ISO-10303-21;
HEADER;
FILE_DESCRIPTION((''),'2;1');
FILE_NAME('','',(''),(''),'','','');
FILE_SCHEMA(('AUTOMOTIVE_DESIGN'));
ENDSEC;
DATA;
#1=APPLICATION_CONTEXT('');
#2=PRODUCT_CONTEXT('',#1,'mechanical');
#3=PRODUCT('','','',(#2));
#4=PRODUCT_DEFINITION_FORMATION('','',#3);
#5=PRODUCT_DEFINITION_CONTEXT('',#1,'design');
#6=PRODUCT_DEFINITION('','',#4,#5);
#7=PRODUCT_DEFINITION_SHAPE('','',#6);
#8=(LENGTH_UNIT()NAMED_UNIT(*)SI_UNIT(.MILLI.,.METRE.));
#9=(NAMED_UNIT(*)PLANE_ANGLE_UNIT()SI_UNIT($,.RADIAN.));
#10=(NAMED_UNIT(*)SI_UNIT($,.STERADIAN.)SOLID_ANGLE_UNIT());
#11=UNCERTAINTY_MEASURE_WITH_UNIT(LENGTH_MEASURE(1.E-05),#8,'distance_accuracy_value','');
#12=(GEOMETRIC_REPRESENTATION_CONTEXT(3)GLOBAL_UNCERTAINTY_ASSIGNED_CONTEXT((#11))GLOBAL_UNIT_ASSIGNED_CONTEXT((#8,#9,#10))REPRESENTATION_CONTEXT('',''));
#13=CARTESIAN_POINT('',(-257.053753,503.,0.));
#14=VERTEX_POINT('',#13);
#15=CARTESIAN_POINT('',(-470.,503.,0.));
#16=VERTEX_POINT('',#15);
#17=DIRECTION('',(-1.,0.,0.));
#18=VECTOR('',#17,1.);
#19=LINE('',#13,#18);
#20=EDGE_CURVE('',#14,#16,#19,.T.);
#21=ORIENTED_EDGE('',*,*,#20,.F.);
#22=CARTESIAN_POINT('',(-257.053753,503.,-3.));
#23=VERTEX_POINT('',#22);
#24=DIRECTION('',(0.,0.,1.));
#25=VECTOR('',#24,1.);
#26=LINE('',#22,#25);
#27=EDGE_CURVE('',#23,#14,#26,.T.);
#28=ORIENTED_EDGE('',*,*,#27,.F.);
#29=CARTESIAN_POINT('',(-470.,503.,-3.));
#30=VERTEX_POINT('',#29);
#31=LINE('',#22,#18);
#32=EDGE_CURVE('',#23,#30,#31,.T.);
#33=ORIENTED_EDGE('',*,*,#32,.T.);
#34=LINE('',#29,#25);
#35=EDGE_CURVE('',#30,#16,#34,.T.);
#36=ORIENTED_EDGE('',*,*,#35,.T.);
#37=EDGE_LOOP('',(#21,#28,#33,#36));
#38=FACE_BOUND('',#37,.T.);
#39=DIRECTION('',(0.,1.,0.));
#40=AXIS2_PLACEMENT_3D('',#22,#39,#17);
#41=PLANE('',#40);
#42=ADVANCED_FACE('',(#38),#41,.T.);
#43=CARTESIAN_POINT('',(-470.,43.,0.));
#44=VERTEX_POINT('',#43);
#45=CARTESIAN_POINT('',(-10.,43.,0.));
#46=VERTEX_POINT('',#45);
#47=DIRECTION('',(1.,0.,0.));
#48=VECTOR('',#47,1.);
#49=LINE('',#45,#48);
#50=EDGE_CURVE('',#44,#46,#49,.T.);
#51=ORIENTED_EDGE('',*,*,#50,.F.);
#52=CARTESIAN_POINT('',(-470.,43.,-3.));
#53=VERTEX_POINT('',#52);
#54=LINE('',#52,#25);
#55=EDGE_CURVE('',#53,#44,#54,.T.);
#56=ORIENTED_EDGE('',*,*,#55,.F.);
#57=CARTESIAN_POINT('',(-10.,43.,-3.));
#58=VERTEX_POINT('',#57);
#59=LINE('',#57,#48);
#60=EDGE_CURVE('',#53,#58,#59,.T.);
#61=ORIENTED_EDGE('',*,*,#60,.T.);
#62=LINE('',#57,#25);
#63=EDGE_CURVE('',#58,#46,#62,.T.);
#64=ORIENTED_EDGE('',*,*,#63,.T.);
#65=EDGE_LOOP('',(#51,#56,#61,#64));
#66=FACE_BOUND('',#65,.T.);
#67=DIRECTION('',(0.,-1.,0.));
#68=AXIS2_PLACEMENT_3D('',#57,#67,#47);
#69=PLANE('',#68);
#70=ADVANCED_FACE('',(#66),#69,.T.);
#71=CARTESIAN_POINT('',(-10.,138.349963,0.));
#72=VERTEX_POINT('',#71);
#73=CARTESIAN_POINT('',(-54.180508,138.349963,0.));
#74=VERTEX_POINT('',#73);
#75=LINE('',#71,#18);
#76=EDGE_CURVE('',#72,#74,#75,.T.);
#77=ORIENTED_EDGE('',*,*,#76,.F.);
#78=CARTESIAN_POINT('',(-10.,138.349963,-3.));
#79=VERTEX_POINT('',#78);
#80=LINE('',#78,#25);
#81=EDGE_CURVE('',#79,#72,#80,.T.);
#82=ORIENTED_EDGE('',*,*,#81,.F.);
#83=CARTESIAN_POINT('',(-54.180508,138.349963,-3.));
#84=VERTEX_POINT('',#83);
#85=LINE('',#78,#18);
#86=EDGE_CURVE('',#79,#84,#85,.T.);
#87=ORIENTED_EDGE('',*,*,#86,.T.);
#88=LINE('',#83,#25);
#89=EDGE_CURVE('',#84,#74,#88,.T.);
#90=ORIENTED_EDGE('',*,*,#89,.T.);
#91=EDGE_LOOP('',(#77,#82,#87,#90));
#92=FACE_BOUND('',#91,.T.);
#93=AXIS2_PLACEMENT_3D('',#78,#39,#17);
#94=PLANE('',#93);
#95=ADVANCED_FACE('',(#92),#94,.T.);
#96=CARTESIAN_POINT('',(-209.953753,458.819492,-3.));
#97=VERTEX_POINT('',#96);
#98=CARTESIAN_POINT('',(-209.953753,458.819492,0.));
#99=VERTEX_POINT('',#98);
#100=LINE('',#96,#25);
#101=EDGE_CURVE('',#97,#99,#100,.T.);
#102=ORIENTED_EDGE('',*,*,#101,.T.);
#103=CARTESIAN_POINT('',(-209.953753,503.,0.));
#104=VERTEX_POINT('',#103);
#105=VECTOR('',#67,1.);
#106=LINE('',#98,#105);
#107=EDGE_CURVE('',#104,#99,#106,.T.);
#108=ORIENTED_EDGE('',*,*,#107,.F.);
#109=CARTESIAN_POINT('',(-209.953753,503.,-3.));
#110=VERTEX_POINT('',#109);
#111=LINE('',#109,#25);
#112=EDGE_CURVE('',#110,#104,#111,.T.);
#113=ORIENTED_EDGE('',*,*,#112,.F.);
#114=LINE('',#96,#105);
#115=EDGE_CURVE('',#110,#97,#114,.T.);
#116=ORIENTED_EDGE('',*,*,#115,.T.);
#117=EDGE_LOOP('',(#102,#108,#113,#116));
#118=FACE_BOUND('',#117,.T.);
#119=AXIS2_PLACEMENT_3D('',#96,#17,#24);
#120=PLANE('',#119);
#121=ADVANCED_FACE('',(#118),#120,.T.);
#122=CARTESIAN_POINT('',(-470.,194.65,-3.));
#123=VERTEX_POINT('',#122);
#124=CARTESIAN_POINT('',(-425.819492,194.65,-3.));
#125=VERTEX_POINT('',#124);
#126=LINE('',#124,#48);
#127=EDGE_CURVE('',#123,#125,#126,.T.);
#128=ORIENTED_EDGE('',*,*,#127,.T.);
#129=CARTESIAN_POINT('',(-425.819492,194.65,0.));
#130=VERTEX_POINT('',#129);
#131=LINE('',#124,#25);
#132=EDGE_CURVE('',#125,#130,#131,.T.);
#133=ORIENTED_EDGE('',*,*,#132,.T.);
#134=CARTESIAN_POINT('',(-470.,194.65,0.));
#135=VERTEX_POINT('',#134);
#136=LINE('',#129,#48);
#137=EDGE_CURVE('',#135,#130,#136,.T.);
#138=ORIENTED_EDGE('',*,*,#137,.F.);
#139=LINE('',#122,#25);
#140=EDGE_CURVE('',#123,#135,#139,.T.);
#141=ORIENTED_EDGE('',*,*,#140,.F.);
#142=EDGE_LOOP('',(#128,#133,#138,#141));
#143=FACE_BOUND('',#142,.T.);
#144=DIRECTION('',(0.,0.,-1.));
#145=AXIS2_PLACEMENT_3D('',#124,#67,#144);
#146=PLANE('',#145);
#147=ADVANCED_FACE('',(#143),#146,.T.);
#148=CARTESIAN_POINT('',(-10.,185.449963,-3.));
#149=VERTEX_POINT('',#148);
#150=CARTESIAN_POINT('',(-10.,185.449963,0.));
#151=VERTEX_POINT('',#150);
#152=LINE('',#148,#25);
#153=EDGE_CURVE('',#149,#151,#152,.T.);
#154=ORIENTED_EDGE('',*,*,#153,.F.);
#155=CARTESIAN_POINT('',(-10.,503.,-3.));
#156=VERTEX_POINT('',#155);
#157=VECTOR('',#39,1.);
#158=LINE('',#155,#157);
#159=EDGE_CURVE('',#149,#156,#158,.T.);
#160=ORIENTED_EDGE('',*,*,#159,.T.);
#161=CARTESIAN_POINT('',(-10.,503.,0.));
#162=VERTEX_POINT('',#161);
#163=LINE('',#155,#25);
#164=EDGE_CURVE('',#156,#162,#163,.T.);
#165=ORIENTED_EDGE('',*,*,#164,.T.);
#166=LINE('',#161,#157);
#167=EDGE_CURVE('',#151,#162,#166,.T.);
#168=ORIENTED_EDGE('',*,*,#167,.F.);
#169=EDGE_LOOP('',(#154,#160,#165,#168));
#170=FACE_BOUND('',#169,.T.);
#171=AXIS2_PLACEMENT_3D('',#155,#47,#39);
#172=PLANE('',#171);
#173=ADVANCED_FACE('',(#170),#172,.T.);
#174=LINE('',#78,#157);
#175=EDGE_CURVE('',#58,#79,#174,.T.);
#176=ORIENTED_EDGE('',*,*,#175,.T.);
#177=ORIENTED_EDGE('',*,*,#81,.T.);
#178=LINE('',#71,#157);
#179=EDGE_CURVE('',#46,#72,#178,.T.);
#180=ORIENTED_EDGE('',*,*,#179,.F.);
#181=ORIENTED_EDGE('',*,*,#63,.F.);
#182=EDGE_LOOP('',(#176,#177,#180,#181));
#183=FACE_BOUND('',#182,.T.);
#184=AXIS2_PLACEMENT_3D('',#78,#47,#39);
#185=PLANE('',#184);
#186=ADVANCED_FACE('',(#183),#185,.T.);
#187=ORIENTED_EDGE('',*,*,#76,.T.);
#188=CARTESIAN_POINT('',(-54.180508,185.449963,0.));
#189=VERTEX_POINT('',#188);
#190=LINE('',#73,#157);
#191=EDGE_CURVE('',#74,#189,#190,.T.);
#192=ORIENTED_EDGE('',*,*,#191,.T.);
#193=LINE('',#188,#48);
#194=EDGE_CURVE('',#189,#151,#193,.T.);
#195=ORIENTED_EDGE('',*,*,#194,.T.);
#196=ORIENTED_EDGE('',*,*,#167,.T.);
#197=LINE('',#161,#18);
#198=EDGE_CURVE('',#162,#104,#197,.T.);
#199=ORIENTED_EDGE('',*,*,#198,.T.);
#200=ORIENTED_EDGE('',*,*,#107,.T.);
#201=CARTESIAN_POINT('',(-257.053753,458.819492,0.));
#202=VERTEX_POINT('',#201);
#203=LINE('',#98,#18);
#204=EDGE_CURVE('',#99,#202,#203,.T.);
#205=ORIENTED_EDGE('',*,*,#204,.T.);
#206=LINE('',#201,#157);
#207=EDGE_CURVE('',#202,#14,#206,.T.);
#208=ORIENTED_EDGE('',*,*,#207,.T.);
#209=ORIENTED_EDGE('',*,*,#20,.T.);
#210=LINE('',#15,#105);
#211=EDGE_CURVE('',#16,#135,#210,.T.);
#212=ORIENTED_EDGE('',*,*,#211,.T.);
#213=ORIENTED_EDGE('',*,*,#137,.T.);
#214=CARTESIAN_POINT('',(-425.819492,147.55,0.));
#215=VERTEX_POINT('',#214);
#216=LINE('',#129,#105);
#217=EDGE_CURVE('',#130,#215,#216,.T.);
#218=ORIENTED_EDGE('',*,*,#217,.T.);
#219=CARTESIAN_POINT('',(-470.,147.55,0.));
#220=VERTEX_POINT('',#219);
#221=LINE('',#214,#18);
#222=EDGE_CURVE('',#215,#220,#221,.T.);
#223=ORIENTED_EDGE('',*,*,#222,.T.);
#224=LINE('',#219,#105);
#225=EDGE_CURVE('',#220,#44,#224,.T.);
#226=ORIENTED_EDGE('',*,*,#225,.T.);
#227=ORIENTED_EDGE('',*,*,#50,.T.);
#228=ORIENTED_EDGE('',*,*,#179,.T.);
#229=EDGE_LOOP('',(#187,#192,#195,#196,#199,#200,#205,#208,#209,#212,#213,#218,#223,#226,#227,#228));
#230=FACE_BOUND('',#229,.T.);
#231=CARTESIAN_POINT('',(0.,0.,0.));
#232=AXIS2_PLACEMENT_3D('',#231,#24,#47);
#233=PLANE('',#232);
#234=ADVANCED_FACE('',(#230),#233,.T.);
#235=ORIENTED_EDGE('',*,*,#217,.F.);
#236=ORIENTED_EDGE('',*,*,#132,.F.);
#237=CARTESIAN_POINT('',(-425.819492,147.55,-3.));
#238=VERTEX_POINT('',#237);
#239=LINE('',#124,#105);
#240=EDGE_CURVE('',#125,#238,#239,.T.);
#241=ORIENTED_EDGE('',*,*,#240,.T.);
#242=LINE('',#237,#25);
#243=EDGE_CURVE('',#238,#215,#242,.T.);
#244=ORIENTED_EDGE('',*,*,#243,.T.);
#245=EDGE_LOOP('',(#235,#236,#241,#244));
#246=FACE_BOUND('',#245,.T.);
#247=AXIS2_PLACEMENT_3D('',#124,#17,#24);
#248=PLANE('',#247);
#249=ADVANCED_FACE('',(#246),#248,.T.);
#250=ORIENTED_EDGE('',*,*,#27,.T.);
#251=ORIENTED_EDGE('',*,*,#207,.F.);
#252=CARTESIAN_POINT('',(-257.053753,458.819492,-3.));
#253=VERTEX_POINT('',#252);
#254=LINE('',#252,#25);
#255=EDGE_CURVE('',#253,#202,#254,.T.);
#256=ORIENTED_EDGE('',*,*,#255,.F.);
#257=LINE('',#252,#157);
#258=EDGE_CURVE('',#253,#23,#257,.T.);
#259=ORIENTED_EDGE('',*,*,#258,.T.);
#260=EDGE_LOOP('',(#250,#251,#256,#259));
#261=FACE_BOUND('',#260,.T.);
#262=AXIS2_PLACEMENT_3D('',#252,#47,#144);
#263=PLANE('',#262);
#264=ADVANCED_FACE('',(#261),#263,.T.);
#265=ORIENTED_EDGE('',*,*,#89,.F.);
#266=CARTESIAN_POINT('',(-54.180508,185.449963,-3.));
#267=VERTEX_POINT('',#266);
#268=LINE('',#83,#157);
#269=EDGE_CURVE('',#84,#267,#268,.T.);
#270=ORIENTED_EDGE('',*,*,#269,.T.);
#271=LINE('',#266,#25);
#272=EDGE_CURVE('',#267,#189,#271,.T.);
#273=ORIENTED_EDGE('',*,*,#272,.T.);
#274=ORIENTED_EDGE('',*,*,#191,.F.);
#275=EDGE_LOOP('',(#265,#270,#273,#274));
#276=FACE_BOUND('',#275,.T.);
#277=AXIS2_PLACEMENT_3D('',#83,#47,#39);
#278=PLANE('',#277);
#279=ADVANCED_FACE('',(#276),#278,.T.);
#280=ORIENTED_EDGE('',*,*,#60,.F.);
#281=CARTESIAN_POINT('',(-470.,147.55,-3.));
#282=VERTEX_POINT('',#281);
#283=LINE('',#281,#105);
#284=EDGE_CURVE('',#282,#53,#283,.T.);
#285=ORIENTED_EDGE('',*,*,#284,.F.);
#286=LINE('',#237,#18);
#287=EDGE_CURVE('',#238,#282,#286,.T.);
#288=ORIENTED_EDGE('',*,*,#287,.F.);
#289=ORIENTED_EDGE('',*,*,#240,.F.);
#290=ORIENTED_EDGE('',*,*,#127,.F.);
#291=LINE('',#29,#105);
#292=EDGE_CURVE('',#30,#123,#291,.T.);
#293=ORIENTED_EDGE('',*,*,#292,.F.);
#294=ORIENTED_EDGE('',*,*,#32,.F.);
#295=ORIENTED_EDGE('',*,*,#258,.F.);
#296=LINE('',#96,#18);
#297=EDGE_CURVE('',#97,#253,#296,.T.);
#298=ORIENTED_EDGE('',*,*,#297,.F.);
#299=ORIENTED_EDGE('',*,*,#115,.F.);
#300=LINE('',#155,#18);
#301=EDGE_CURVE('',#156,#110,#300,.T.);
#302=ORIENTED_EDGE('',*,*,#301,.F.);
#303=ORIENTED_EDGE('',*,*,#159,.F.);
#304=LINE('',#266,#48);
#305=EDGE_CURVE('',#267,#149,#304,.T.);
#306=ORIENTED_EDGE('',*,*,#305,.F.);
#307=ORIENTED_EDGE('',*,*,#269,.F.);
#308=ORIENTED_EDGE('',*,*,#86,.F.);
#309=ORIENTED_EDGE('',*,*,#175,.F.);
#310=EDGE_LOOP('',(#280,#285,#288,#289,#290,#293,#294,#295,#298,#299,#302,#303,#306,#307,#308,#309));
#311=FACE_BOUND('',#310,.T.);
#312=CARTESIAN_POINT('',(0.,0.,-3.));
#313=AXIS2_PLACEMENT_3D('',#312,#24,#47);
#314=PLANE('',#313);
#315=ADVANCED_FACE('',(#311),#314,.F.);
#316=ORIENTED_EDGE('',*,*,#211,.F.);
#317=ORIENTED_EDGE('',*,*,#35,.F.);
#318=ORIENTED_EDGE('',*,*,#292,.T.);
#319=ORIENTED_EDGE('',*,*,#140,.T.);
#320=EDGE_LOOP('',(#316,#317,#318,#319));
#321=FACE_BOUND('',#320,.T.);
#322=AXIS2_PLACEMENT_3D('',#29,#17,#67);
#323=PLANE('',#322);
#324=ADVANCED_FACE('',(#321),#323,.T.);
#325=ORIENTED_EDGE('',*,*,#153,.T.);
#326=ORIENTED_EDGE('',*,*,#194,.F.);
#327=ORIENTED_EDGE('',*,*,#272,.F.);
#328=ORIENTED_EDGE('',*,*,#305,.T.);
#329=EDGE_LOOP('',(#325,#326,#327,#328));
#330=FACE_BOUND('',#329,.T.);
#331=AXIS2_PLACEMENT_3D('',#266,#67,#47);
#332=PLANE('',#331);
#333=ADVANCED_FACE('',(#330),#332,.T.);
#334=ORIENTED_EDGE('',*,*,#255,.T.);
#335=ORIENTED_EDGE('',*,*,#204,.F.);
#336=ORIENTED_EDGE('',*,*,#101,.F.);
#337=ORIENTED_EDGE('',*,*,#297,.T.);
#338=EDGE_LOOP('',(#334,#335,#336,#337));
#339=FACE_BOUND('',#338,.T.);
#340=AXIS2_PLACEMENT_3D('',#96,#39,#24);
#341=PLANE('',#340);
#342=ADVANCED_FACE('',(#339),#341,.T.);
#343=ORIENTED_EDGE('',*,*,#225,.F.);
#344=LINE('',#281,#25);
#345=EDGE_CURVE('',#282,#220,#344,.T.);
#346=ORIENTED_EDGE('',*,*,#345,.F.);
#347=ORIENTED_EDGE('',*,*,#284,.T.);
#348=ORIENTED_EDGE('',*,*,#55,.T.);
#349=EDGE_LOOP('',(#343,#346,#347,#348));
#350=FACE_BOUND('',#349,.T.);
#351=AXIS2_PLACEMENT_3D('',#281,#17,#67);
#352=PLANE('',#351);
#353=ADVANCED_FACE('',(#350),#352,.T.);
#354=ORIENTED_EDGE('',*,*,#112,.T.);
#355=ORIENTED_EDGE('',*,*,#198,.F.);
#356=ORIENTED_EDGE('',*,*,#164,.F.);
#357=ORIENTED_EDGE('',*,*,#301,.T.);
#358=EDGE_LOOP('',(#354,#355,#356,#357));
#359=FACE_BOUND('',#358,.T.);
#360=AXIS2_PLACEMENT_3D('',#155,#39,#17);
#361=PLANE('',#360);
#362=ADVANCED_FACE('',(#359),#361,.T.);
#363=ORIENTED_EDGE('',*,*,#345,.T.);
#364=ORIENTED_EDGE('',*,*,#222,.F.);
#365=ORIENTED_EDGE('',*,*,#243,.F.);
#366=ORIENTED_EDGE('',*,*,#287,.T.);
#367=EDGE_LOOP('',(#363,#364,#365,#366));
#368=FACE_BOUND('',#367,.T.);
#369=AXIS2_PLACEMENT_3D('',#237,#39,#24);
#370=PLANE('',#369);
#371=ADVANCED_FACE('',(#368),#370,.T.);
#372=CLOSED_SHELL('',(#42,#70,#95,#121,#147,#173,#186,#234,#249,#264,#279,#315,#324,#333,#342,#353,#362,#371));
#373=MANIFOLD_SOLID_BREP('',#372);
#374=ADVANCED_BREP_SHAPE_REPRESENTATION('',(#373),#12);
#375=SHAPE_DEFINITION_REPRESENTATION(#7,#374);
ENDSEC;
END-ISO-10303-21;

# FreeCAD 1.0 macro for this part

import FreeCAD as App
import Part
import Sketcher
from FreeCAD import Vector


def add_polygon(sketch, points):
    """Adds a closed chain of lines whose ends are joined by coincident constraints."""
    first, n = sketch.GeometryCount, len(points)
    for a, b in zip(points, points[1:] + points[:1]):
        sketch.addGeometry(Part.LineSegment(App.Vector(*a, 0), App.Vector(*b, 0)), False)
    for i in range(n):
        sketch.addConstraint(Sketcher.Constraint("Coincident", first + i, 2, first + (i + 1) % n, 1))

doc = App.newDocument("Part")
params = doc.addObject("Spreadsheet::Sheet", "Params")
for row, (alias, value) in enumerate([
    ("sketch1_width", "460 mm"),
    ("sketch1_width2", "47.1 mm"),
    ("sketch1_height", "308.35 mm"),
    ("pad1_length", "3 mm"),
], start=1):
    params.set(f"A{row}", alias)
    params.set(f"B{row}", "=" + value)
    params.setAlias(f"B{row}", alias)

body = doc.addObject("PartDesign::Body", "Body")

# Sketch on XY plane
sketch1 = doc.addObject("Sketcher::SketchObject", "Sketch")
body.addObject(sketch1)
sketch1.AttachmentSupport = (doc.XY_Plane, [""])
sketch1.MapMode = "FlatFace"
add_polygon(sketch1, [(-10, 503), (-210, 503), (-210, 459), (-257, 459), (-257, 503), (-470, 503), (-470, 195), (-426, 195), (-426, 148), (-470, 148), (-470, 43), (-10, 43), (-10, 138), (-54, 138), (-54, 185), (-10, 185)])  # lines 0-15
sketch1.addConstraint([
    Sketcher.Constraint("Horizontal", 0),
    Sketcher.Constraint("Vertical", 1),
    Sketcher.Constraint("Horizontal", 2),
    Sketcher.Constraint("Vertical", 3),
    Sketcher.Constraint("Horizontal", 4),
    Sketcher.Constraint("Vertical", 5),
    Sketcher.Constraint("Horizontal", 6),
    Sketcher.Constraint("Vertical", 7),
    Sketcher.Constraint("Horizontal", 8),
    Sketcher.Constraint("Vertical", 9),
    Sketcher.Constraint("Horizontal", 10),
    Sketcher.Constraint("Vertical", 11),
    Sketcher.Constraint("Horizontal", 12),
    Sketcher.Constraint("Vertical", 13),
    Sketcher.Constraint("Horizontal", 14),
    Sketcher.Constraint("Vertical", 15),
    Sketcher.Constraint("Horizontal", 0, 2, 3, 2),
    Sketcher.Constraint("Vertical", 5, 2, 8, 2),
    Sketcher.Constraint("Vertical", 11, 2, 14, 2),
    Sketcher.Constraint("Equal", 8, 12),
    Sketcher.Constraint("Equal", 14, 1),
    Sketcher.Constraint("Equal", 2, 7),
    Sketcher.Constraint("Equal", 7, 13),
    Sketcher.Constraint("DistanceX", 10, 1, 10, 2, 460.0),
    Sketcher.Constraint("DistanceX", 2, 2, 2, 1, 47.1),
    Sketcher.Constraint("DistanceY", -1, 1, 0, 2, 503.0),
    Sketcher.Constraint("DistanceX", 4, 2, -1, 1, 470.0),
    Sketcher.Constraint("DistanceY", -1, 1, 9, 2, 43.0),
    Sketcher.Constraint("DistanceY", 5, 2, 5, 1, 308.35),
    Sketcher.Constraint("DistanceX", 6, 1, 6, 2, 44.180508),
    Sketcher.Constraint("DistanceX", 0, 2, 0, 1, 199.953753),
    Sketcher.Constraint("DistanceY", 11, 1, 11, 2, 95.349963),
])
sketch1.setExpression("Constraints[39]", "Params.sketch1_width")
sketch1.setExpression("Constraints[40]", "Params.sketch1_width2")
sketch1.setExpression("Constraints[44]", "Params.sketch1_height")
pad1 = doc.addObject("PartDesign::Pad", "Pad")
body.addObject(pad1)
pad1.Profile = sketch1
pad1.setExpression("Length", "Params.pad1_length")
pad1.Reversed = True

doc.recompute()
